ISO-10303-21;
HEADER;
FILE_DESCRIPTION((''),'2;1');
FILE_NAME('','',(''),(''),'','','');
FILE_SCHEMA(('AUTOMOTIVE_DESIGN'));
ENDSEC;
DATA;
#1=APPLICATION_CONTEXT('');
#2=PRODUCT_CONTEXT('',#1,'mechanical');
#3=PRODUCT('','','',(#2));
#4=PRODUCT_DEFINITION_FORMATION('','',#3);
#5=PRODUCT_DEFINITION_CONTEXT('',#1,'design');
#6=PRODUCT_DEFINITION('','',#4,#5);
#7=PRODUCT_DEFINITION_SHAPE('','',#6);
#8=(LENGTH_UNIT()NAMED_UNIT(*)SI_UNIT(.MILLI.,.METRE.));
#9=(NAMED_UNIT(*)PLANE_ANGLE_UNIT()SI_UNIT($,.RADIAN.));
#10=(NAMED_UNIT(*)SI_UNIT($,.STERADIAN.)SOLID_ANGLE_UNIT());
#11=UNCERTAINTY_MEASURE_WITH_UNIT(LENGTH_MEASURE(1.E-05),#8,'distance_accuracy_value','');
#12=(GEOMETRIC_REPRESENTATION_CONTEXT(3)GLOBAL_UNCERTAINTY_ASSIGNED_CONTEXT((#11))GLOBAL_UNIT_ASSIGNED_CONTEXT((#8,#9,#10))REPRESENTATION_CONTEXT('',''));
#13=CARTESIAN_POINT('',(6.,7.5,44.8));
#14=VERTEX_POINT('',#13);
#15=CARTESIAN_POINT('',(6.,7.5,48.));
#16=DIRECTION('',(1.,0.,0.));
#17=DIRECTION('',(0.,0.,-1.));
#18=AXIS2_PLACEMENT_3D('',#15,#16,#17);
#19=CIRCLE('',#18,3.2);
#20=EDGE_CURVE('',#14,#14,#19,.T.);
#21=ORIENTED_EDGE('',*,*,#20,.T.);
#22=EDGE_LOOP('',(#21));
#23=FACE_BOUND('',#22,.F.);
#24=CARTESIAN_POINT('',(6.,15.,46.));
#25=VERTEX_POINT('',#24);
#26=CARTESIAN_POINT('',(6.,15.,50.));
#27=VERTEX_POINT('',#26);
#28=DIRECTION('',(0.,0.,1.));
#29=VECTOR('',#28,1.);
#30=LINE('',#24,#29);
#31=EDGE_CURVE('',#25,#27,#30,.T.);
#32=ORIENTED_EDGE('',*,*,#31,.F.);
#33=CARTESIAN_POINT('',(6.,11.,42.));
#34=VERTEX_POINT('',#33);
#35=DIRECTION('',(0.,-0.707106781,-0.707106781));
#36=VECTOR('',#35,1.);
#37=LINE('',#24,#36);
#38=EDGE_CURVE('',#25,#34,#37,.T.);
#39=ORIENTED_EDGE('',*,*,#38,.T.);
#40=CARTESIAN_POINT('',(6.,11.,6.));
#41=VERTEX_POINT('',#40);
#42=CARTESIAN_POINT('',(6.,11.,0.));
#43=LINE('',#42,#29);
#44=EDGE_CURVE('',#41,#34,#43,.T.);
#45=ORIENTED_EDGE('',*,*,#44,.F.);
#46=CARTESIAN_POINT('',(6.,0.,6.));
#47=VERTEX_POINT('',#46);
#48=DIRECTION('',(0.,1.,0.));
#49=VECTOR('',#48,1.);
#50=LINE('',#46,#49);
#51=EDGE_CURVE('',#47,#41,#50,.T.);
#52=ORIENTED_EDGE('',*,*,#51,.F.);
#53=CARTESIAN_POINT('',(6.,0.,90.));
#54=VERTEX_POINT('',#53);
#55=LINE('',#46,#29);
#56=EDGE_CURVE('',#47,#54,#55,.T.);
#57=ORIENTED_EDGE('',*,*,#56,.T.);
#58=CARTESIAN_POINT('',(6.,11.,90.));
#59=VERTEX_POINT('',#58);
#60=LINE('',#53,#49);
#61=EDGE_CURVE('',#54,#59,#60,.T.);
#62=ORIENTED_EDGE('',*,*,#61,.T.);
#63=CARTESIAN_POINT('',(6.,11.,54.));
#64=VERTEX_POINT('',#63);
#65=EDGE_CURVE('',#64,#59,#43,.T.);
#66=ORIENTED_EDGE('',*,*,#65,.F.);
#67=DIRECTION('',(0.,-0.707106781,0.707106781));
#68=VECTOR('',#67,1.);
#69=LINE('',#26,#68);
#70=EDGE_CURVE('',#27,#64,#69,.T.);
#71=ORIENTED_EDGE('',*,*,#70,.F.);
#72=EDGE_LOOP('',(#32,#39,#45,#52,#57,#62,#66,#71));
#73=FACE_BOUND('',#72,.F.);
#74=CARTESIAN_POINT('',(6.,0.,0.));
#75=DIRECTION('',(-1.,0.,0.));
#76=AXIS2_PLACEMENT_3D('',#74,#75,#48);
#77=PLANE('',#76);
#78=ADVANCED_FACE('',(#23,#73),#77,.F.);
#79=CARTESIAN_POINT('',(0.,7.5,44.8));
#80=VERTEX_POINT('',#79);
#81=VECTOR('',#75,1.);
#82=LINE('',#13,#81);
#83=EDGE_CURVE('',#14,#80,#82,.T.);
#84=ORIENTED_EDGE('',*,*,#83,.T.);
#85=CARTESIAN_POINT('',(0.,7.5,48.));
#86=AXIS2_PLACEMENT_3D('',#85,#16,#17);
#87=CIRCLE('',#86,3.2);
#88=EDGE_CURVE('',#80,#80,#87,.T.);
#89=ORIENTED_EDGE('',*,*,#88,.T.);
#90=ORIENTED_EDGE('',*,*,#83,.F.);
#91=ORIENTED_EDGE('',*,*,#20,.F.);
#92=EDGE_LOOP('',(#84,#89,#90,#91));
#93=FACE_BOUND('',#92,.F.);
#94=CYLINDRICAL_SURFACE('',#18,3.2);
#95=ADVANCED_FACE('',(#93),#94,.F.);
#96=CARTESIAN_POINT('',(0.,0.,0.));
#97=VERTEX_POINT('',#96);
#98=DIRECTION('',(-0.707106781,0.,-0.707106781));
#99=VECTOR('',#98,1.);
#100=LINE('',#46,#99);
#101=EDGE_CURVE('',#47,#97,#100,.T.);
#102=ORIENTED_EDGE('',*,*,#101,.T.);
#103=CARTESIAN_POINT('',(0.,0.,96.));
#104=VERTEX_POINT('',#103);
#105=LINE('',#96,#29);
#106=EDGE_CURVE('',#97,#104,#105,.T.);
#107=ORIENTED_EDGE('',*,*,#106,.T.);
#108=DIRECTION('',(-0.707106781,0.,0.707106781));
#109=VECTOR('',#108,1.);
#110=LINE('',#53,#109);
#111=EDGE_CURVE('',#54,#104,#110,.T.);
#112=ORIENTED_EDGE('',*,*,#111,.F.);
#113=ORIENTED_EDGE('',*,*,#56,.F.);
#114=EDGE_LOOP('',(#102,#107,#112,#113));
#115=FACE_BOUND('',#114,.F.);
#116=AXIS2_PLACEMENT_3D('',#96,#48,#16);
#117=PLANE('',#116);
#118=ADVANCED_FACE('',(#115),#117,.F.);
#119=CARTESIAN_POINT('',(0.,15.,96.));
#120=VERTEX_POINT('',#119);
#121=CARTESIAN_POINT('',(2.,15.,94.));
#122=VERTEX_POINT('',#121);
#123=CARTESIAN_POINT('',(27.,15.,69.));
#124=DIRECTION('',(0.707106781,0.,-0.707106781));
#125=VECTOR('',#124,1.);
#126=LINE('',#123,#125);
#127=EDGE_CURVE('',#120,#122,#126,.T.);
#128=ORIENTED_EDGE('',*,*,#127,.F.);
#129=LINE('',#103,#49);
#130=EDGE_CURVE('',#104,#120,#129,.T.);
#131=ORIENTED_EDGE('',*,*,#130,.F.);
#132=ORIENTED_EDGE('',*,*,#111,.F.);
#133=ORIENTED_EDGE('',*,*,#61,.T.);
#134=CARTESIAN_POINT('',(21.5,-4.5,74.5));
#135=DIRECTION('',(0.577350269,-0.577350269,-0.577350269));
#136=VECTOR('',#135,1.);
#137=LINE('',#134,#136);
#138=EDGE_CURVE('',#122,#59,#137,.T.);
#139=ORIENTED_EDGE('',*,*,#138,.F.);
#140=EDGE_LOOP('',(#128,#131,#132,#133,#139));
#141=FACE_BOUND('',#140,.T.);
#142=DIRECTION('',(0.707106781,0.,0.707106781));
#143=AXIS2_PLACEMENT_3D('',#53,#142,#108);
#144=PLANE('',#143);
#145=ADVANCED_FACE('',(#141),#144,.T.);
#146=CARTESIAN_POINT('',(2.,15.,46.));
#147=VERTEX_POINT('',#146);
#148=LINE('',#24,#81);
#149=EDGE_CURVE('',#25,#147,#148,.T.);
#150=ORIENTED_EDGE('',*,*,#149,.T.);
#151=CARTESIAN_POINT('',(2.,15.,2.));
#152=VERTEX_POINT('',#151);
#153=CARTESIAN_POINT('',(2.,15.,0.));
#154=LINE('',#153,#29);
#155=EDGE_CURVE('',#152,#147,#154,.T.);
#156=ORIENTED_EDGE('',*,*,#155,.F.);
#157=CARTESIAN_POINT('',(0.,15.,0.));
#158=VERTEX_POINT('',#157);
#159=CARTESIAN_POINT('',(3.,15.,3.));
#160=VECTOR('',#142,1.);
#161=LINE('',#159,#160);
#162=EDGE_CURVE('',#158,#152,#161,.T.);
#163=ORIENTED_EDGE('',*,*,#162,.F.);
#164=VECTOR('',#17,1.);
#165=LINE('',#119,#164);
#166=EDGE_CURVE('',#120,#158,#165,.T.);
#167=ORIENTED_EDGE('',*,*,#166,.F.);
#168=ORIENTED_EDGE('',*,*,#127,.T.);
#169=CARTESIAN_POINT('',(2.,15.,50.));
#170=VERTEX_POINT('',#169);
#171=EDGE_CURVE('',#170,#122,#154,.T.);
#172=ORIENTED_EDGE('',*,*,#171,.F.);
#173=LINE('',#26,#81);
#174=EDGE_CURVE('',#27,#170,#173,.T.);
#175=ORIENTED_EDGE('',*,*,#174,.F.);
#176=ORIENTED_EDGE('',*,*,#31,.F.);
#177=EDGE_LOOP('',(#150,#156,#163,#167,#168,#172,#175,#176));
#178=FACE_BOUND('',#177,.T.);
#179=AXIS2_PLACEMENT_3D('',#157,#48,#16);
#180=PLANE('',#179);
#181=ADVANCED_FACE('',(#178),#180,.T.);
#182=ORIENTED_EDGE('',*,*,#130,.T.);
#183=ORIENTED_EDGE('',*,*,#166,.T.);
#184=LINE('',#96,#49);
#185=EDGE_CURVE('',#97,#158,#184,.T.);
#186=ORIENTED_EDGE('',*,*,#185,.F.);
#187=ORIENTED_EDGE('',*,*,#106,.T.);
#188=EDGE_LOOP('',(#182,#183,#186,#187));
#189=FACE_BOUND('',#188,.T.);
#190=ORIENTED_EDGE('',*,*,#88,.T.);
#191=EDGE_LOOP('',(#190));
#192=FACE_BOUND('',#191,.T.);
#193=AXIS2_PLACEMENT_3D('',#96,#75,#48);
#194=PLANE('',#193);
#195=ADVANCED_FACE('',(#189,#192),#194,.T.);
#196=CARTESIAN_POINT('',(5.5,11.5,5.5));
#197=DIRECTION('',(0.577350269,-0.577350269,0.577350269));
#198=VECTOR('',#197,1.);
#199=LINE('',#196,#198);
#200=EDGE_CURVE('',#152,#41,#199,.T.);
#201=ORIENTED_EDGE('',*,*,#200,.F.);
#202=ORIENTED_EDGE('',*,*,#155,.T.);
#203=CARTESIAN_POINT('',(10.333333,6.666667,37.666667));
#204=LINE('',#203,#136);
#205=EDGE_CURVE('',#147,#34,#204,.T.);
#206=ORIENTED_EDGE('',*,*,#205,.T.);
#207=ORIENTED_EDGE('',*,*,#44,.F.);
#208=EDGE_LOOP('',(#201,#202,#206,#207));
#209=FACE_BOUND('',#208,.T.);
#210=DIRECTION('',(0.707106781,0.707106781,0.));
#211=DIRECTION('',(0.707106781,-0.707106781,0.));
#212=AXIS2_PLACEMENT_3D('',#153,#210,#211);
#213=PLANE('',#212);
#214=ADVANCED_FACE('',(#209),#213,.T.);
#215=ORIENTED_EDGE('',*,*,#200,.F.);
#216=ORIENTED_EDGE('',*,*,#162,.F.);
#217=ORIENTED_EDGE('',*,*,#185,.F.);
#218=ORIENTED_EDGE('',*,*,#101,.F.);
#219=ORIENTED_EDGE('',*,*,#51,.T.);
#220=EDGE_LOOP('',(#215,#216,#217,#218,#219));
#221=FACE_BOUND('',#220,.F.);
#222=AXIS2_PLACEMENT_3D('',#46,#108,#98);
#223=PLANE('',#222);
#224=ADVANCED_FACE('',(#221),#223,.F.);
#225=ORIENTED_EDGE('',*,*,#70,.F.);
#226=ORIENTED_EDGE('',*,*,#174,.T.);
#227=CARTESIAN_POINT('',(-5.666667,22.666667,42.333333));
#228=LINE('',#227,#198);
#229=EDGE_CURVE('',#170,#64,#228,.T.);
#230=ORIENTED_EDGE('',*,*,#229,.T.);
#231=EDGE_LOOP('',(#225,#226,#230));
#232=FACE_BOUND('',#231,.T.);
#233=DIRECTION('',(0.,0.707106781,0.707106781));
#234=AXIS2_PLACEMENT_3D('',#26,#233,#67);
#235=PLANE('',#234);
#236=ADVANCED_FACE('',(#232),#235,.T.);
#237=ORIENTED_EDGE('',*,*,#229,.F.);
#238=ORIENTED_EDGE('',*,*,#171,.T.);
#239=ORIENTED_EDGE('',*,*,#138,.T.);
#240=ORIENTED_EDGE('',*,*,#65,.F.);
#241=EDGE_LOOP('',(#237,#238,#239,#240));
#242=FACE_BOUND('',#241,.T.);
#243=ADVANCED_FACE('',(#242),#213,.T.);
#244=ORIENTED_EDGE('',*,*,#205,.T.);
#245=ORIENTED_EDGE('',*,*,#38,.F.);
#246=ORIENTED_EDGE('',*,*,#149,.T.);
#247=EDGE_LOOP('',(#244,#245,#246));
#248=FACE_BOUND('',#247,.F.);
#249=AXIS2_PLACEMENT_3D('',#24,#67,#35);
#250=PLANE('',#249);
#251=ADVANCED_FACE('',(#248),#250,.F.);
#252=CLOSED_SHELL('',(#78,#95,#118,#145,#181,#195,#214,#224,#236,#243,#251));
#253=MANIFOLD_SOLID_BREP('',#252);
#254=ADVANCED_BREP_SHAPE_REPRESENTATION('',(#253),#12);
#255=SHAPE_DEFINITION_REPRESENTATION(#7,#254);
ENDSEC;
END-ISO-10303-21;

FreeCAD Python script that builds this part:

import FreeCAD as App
import Part
import Sketcher


def add_polygon(sketch, points):
    """Adds a closed chain of lines whose ends are joined by coincident constraints."""
    first, n = sketch.GeometryCount, len(points)
    for a, b in zip(points, points[1:] + points[:1]):
        sketch.addGeometry(Part.LineSegment(App.Vector(*a, 0), App.Vector(*b, 0)), False)
    for i in range(n):
        sketch.addConstraint(Sketcher.Constraint("Coincident", first + i, 2, first + (i + 1) % n, 1))

doc = App.newDocument("Part")
params = doc.addObject("Spreadsheet::Sheet", "Params")
for row, (alias, value) in enumerate([
    ("sketch1_width", "6 mm"),
    ("sketch1_width2", "2 mm"),
    ("sketch1_height", "15 mm"),
    ("sketch1_height2", "11 mm"),
    ("pad1_length", "96 mm"),
    ("sketch2_width", "6 mm"),
    ("pocket1_length", "42.1125 mm"),
    ("sketch3_width", "11 mm"),
    ("sketch3_height", "4 mm"),
    ("sketch3_height2", "12 mm"),
    ("pad2_length", "6 mm"),
    ("sketch4_diameter", "6.4 mm"),
    ("pocket2_length", "10 mm"),
], start=1):
    params.set(f"A{row}", alias)
    params.set(f"B{row}", "=" + value)
    params.setAlias(f"B{row}", alias)

body = doc.addObject("PartDesign::Body", "Body")

sketch1 = doc.addObject("Sketcher::SketchObject", "Sketch")
body.addObject(sketch1)
sketch1.AttachmentSupport = (doc.XY_Plane, [""])
sketch1.MapMode = "FlatFace"
add_polygon(sketch1, [(0, 15), (0, 0), (6, 0), (6, 11), (2, 15)])
sketch1.addConstraint([
    Sketcher.Constraint("Vertical", 0),
    Sketcher.Constraint("Horizontal", 1),
    Sketcher.Constraint("Vertical", 2),
    Sketcher.Constraint("Horizontal", 4),
    Sketcher.Constraint("Coincident", 0, 2, -1, 1),
    Sketcher.Constraint("DistanceX", 1, 1, 1, 2, 6.0),
    Sketcher.Constraint("DistanceX", 4, 2, 4, 1, 2.0),
    Sketcher.Constraint("DistanceY", 0, 2, 0, 1, 15.0),
    Sketcher.Constraint("DistanceY", 2, 1, 2, 2, 11.0),
])
sketch1.setExpression("Constraints[10]", "Params.sketch1_width")
sketch1.setExpression("Constraints[11]", "Params.sketch1_width2")
sketch1.setExpression("Constraints[12]", "Params.sketch1_height")
sketch1.setExpression("Constraints[13]", "Params.sketch1_height2")
pad1 = doc.addObject("PartDesign::Pad", "Pad")
body.addObject(pad1)
pad1.Profile = sketch1
pad1.setExpression("Length", "Params.pad1_length")

sketch2 = doc.addObject("Sketcher::SketchObject", "Sketch001")
body.addObject(sketch2)
sketch2.AttachmentSupport = (doc.XZ_Plane, [""])
sketch2.MapMode = "FlatFace"
add_polygon(sketch2, [(6, 6), (0, 0), (6, 0)])
add_polygon(sketch2, [(6, 96), (0, 96), (6, 90)])
sketch2.addConstraint([
    Sketcher.Constraint("Horizontal", 1),
    Sketcher.Constraint("Vertical", 2),
    Sketcher.Constraint("Horizontal", 3),
    Sketcher.Constraint("Vertical", 5),
    Sketcher.Constraint("Coincident", 0, 2, -1, 1),
    Sketcher.Constraint("PointOnObject", 3, 2, -2),
    Sketcher.Constraint("Perpendicular", 0, 4),
    Sketcher.Constraint("Vertical", 2, 2, 4, 2),
    Sketcher.Constraint("Equal", 3, 2),
    Sketcher.Constraint("DistanceX", 1, 1, 1, 2, 6.0),
    Sketcher.Constraint("DistanceY", -1, 1, 3, 2, 96.0),
])
sketch2.setExpression("Constraints[15]", "Params.sketch2_width")
pocket1 = doc.addObject("PartDesign::Pocket", "Pocket")
body.addObject(pocket1)
pocket1.Profile = sketch2
pocket1.setExpression("Length", "Params.pocket1_length")

sketch3 = doc.addObject("Sketcher::SketchObject", "Sketch002")
body.addObject(sketch3)
sketch3.AttachmentSupport = (doc.YZ_Plane, [""])
sketch3.MapMode = "FlatFace"
sketch3.AttachmentOffset = App.Placement(App.Vector(0, 0, 6), App.Rotation())
add_polygon(sketch3, [(0, 42), (11, 42), (15, 46), (15, 50), (11, 54), (0, 54)])
sketch3.addConstraint([
    Sketcher.Constraint("Horizontal", 0),
    Sketcher.Constraint("Vertical", 2),
    Sketcher.Constraint("Horizontal", 4),
    Sketcher.Constraint("Vertical", 5),
    Sketcher.Constraint("PointOnObject", 4, 2, -2),
    Sketcher.Constraint("Perpendicular", 1, 3),
    Sketcher.Constraint("Vertical", 0, 2, 3, 2),
    Sketcher.Constraint("Equal", 1, 3),
    Sketcher.Constraint("DistanceX", 0, 1, 0, 2, 11.0),
    Sketcher.Constraint("DistanceY", 2, 1, 2, 2, 4.0),
    Sketcher.Constraint("DistanceY", 5, 2, 5, 1, 12.0),
    Sketcher.Constraint("DistanceY", -1, 1, 0, 2, 42.0),
])
sketch3.setExpression("Constraints[14]", "Params.sketch3_width")
sketch3.setExpression("Constraints[15]", "Params.sketch3_height")
sketch3.setExpression("Constraints[16]", "Params.sketch3_height2")
pad2 = doc.addObject("PartDesign::Pad", "Pad001")
body.addObject(pad2)
pad2.Profile = sketch3
pad2.setExpression("Length", "Params.pad2_length")
pad2.Reversed = True

sketch4 = doc.addObject("Sketcher::SketchObject", "Sketch003")
body.addObject(sketch4)
sketch4.AttachmentSupport = (doc.YZ_Plane, [""])
sketch4.MapMode = "FlatFace"
sketch4.AttachmentOffset = App.Placement(App.Vector(0, 0, 6), App.Rotation())
sketch4.addGeometry(Part.Circle(App.Vector(7.5, 48, 0), App.Vector(0, 0, 1), 3.2), False)
sketch4.addConstraint([
    Sketcher.Constraint("Diameter", 0, 6.4),
    Sketcher.Constraint("DistanceX", -1, 1, 0, 3, 7.5),
    Sketcher.Constraint("DistanceY", -1, 1, 0, 3, 48.0),
])
sketch4.setExpression("Constraints[0]", "Params.sketch4_diameter")
pocket2 = doc.addObject("PartDesign::Pocket", "Pocket001")
body.addObject(pocket2)
pocket2.Profile = sketch4
pocket2.setExpression("Length", "Params.pocket2_length")

doc.recompute()
